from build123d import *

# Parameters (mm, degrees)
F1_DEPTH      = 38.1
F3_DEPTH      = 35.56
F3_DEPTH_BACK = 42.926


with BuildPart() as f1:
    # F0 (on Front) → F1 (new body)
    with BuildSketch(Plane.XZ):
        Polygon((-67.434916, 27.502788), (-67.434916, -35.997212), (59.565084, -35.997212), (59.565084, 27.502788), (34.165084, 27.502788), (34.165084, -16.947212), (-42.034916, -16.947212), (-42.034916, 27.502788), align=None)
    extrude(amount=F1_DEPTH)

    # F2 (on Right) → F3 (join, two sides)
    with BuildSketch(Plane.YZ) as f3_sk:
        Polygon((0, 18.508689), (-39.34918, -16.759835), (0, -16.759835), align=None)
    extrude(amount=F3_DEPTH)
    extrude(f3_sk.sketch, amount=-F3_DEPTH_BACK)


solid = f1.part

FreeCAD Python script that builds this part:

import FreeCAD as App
import Part
import Sketcher

V = App.Vector
Q = App.Units.Quantity

doc = App.newDocument("Part")
body = doc.addObject("PartDesign::Body", "Body")

# Sketch on XZ plane
sketch1 = body.newObject("Sketcher::SketchObject", "Sketch")
sketch1.AttachmentSupport = (doc.getObject("XZ_Plane"), [""])
sketch1.MapMode = "FlatFace"
sketch1.addGeometry([
    Part.LineSegment(V(-67, 28, 0), V(-67, -36, 0)),  # 0
    Part.LineSegment(V(-67, -36, 0), V(60, -36, 0)),  # 1
    Part.LineSegment(V(60, -36, 0), V(60, 28, 0)),  # 2
    Part.LineSegment(V(60, 28, 0), V(34, 28, 0)),  # 3
    Part.LineSegment(V(34, 28, 0), V(34, -17, 0)),  # 4
    Part.LineSegment(V(34, -17, 0), V(-42, -17, 0)),  # 5
    Part.LineSegment(V(-42, -17, 0), V(-42, 28, 0)),  # 6
    Part.LineSegment(V(-42, 28, 0), V(-67, 28, 0)),  # 7
], False)
sketch1.addConstraint([
    Sketcher.Constraint("Coincident", 0, 2, 1, 1),
    Sketcher.Constraint("Coincident", 1, 2, 2, 1),
    Sketcher.Constraint("Coincident", 2, 2, 3, 1),
    Sketcher.Constraint("Coincident", 3, 2, 4, 1),
    Sketcher.Constraint("Coincident", 4, 2, 5, 1),
    Sketcher.Constraint("Coincident", 5, 2, 6, 1),
    Sketcher.Constraint("Coincident", 6, 2, 7, 1),
    Sketcher.Constraint("Coincident", 7, 2, 0, 1),
    Sketcher.Constraint("Vertical", 0),
    Sketcher.Constraint("Horizontal", 1),
    Sketcher.Constraint("Vertical", 2),
    Sketcher.Constraint("Horizontal", 3),
    Sketcher.Constraint("Vertical", 4),
    Sketcher.Constraint("Horizontal", 5),
    Sketcher.Constraint("Vertical", 6),
    Sketcher.Constraint("Horizontal", 7),
    Sketcher.Constraint("Horizontal", 3, 2, 6, 2),
    Sketcher.Constraint("Equal", 3, 7),
    Sketcher.Constraint("DistanceX", 1, 1, 1, 2, Q("5 in")),
    Sketcher.Constraint("DistanceX", 3, 2, 3, 1, Q("1 in")),
    Sketcher.Constraint("DistanceY", 0, 2, 0, 1, Q("2.5 in")),
    Sketcher.Constraint("DistanceY", 4, 2, 4, 1, Q("1.75 in")),
    Sketcher.Constraint("DistanceY", 0, 2, -1, 1, Q("35.997212 mm")),
    Sketcher.Constraint("DistanceX", 0, 2, -1, 1, Q("67.434916 mm")),
])
pad1 = body.newObject("PartDesign::Pad", "Pad")
pad1.Profile = sketch1
pad1.Length = Q("1.5 in")

# Sketch on YZ plane
sketch2 = body.newObject("Sketcher::SketchObject", "Sketch001")
sketch2.AttachmentSupport = (doc.getObject("YZ_Plane"), [""])
sketch2.MapMode = "FlatFace"
sketch2.addGeometry([
    Part.LineSegment(V(0, 19, 0), V(-39, -17, 0)),
    Part.LineSegment(V(-39, -17, 0), V(0, -17, 0)),
    Part.LineSegment(V(0, -17, 0), V(0, 19, 0)),
], False)
sketch2.addConstraint([
    Sketcher.Constraint("Coincident", 0, 2, 1, 1),
    Sketcher.Constraint("Coincident", 1, 2, 2, 1),
    Sketcher.Constraint("Coincident", 2, 2, 0, 1),
    Sketcher.Constraint("Horizontal", 1),
    Sketcher.Constraint("Vertical", 2),
    Sketcher.Constraint("PointOnObject", 1, 2, -2),
    Sketcher.Constraint("DistanceX", 1, 1, 1, 2, Q("39.34918 mm")),
    Sketcher.Constraint("DistanceY", 2, 1, 2, 2, Q("35.268524 mm")),
    Sketcher.Constraint("DistanceY", -1, 1, 2, 2, Q("18.508689 mm")),
])
pad2 = body.newObject("PartDesign::Pad", "Pad001")
pad2.Profile = sketch2
pad2.Type = "TwoLengths"
pad2.Length = Q("1.4 in")
pad2.Length2 = Q("1.69 in")

doc.recompute()
